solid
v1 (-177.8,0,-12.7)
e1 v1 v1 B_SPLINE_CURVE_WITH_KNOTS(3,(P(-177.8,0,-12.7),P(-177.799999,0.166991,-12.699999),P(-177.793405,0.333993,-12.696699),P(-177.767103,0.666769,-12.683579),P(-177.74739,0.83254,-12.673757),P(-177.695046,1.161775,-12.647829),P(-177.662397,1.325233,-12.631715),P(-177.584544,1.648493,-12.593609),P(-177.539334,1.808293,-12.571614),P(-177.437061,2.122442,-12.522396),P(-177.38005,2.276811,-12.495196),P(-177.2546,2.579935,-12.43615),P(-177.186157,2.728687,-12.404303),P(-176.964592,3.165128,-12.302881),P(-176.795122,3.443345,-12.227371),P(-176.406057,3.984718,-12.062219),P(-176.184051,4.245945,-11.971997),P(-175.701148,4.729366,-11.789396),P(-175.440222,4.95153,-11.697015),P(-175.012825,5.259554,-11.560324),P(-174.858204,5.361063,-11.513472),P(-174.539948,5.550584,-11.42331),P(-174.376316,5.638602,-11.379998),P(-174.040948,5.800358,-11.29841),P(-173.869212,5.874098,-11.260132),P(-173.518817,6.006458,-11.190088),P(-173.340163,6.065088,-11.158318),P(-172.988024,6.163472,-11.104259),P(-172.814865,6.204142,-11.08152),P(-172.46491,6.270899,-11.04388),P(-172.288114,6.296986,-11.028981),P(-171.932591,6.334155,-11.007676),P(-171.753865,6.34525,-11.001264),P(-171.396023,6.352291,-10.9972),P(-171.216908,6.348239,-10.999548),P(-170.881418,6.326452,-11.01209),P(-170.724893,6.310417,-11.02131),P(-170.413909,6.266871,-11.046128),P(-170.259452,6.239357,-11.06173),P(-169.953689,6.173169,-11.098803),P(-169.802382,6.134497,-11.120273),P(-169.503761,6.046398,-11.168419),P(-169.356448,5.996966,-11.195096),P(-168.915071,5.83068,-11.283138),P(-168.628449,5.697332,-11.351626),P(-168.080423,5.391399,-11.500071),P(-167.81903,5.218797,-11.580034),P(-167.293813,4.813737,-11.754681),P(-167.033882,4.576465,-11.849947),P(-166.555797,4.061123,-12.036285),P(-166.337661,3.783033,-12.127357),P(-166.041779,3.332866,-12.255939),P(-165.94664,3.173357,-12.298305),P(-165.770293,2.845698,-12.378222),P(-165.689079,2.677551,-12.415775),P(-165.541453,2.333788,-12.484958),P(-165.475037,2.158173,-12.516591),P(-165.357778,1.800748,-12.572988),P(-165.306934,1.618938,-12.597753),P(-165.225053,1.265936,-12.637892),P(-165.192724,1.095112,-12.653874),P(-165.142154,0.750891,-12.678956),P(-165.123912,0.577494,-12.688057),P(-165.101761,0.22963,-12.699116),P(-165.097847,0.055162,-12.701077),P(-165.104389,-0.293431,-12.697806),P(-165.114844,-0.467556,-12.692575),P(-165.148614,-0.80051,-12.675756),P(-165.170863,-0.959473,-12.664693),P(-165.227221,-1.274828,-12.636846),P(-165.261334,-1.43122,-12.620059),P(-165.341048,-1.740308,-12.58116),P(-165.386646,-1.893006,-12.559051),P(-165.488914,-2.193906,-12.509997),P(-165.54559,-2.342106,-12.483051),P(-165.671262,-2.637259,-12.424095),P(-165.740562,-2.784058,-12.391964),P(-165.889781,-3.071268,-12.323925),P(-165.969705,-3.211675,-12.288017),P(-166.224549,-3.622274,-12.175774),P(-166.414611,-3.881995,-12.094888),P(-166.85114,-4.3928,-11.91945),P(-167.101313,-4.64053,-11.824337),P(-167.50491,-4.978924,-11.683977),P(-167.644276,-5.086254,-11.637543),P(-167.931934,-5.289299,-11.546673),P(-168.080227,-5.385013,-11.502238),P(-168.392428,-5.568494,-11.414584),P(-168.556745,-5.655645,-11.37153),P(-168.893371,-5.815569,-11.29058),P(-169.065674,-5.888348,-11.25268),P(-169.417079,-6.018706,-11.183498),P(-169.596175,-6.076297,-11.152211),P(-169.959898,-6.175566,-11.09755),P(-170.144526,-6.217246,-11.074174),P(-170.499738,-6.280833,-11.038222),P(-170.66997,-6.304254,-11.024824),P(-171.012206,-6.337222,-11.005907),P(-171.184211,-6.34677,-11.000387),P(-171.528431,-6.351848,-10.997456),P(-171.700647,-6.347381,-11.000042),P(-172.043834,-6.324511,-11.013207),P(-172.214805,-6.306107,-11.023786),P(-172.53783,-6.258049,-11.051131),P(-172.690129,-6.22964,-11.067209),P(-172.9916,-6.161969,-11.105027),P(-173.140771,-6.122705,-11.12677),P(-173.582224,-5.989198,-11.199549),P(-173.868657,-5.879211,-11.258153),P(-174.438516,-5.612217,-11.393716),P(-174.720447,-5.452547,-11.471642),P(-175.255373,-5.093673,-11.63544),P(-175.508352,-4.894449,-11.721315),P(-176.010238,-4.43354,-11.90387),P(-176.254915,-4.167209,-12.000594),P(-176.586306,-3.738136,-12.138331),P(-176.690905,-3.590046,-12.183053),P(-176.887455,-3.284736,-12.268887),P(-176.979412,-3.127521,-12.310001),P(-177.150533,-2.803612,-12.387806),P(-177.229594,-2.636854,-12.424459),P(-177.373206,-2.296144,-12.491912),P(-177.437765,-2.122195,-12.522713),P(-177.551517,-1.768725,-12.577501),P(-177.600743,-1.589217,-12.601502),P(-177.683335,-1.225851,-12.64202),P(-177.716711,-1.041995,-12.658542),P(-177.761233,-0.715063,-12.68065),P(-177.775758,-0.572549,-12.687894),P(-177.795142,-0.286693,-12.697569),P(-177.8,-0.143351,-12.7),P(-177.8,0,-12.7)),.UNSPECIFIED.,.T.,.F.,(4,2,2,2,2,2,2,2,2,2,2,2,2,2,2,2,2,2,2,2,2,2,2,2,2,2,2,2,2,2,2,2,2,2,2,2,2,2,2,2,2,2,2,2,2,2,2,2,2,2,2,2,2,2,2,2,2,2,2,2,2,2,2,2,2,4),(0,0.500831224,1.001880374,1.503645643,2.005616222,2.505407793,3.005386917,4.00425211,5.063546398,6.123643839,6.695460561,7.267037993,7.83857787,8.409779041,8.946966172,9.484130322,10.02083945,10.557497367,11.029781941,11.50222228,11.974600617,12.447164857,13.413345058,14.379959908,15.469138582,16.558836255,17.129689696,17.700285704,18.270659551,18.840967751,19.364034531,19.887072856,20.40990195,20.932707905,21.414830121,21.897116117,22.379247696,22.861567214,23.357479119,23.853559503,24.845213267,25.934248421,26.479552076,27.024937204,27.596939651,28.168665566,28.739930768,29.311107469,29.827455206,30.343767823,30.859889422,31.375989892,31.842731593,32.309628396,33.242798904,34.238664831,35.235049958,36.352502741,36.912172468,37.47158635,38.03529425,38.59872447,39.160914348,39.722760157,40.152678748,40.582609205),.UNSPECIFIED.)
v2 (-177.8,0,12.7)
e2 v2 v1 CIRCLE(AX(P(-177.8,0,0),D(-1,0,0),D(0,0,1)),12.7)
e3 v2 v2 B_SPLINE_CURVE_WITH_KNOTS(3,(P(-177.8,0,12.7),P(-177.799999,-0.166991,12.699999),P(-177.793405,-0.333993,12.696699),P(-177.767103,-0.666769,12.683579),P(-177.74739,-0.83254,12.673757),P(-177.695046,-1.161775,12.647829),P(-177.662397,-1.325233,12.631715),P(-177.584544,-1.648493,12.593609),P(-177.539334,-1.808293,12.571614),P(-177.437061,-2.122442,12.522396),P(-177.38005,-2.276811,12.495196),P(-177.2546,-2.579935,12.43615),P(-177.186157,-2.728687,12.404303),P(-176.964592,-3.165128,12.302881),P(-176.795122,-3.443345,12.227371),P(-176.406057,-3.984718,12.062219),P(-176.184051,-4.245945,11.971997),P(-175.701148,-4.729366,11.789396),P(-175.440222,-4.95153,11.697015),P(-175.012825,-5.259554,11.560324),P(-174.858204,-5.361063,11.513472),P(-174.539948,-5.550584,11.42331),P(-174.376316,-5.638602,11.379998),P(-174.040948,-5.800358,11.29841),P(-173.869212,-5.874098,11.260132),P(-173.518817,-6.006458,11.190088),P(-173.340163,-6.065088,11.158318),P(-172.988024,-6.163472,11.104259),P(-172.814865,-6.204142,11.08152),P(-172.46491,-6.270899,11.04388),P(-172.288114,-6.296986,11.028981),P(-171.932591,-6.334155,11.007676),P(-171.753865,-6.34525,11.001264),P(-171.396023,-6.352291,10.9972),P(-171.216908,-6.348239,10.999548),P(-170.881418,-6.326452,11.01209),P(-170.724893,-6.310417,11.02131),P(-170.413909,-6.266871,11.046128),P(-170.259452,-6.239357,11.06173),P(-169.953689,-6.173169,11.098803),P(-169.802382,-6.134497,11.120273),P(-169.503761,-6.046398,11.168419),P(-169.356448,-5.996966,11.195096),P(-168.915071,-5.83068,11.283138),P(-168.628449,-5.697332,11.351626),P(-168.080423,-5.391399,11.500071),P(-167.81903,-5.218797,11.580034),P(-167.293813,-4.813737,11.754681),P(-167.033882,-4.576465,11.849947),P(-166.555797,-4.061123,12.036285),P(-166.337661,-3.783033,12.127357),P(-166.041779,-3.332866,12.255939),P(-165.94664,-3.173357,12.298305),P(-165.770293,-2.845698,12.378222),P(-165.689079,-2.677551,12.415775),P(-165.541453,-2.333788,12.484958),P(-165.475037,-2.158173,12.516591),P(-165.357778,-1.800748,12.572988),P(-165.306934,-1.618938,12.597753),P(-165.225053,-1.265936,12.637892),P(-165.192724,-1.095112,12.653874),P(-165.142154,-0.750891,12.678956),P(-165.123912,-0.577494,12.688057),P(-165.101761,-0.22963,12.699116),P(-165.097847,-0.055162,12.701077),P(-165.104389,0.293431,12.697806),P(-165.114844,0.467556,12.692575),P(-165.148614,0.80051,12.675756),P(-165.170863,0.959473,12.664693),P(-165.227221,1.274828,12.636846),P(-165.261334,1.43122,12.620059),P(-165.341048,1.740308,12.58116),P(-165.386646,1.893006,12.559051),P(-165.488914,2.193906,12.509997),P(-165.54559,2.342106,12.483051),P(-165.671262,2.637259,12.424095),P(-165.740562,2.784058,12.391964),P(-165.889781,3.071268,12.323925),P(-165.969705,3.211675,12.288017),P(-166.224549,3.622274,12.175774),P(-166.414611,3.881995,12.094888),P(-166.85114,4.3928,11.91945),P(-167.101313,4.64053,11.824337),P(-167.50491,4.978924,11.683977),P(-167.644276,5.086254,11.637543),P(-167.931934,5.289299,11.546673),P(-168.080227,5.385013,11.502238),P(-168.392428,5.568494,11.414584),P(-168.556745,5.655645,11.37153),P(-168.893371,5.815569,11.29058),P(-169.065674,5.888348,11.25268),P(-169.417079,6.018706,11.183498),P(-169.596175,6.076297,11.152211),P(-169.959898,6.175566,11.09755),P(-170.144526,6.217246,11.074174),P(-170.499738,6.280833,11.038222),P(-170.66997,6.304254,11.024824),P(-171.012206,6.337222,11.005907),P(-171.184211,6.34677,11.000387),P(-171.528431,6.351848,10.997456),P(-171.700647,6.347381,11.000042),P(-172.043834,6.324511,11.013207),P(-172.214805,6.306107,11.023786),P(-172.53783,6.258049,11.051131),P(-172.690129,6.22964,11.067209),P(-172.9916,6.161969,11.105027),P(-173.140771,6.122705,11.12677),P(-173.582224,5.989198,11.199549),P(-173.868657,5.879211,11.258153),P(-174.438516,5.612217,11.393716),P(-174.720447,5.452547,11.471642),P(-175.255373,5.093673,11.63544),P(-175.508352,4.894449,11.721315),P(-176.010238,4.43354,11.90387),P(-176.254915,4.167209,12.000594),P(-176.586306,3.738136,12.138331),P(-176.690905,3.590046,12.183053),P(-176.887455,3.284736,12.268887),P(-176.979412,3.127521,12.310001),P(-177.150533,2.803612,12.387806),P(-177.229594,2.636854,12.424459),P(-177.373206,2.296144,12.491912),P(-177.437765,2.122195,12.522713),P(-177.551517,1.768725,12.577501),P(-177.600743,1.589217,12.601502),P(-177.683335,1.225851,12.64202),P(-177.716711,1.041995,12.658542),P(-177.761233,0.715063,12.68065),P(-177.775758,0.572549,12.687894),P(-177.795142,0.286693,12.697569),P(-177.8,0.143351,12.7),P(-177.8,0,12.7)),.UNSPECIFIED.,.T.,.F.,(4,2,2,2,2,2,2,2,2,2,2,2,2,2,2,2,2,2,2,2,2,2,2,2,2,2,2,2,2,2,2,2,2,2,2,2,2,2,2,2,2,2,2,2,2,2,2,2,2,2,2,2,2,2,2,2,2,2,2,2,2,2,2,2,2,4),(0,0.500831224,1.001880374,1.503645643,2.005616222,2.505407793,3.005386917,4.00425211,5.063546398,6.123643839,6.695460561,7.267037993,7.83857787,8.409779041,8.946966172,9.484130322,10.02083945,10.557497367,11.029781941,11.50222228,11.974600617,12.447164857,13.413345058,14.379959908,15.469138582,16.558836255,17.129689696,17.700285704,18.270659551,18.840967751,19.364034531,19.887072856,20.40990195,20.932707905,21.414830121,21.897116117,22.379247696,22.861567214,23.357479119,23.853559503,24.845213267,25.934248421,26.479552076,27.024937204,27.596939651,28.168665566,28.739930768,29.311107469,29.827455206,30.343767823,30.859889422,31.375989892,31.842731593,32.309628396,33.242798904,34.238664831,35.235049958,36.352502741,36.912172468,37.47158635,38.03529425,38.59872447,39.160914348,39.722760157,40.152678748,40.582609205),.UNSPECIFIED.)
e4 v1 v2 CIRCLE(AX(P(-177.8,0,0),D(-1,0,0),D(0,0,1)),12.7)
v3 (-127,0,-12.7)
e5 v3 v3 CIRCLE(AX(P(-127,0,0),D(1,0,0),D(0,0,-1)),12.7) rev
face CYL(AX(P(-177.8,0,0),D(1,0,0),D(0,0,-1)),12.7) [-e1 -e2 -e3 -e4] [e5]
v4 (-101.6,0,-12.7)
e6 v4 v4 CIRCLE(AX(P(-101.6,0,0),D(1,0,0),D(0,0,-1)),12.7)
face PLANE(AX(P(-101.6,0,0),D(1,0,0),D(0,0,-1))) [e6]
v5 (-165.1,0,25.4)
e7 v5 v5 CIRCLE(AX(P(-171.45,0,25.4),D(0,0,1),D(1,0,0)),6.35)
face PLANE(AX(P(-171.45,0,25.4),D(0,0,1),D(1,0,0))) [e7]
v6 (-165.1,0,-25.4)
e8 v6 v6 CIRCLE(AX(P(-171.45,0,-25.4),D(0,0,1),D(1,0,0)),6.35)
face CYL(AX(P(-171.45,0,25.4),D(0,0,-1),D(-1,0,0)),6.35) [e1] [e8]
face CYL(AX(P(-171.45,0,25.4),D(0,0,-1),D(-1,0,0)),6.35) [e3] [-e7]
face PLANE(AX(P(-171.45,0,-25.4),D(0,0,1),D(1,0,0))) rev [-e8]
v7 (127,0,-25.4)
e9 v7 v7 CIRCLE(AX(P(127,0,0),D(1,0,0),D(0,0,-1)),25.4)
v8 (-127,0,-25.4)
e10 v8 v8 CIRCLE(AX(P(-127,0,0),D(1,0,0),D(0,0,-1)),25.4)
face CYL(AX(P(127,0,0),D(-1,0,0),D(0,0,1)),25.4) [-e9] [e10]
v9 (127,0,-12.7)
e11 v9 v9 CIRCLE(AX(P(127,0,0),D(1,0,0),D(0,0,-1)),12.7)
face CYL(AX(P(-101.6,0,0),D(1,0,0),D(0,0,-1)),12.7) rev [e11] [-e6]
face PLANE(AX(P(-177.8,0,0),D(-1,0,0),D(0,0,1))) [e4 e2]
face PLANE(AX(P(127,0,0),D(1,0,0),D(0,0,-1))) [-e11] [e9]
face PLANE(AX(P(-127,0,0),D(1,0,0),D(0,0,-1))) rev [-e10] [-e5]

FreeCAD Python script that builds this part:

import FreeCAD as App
import Part
import Sketcher
Q = App.Units.Quantity

doc = App.newDocument("Part")
body = doc.addObject("PartDesign::Body", "Body")

# Sketch on YZ plane
sketch1 = body.newObject("Sketcher::SketchObject", "Sketch")
sketch1.AttachmentSupport = (doc.getObject("YZ_Plane"), [""])
sketch1.MapMode = "FlatFace"
sketch1.addGeometry(Part.Circle(App.Vector(0, 0, 0), App.Vector(0, 0, 1), 25.4), False)
sketch1.addConstraint(Sketcher.Constraint("Coincident", 0, 3, -1, 1))
sketch1.addConstraint(Sketcher.Constraint("Diameter", 0, Q("2 in")))
pad1 = body.newObject("PartDesign::Pad", "Pad")
pad1.Profile = sketch1
pad1.Length = Q("10 in")
pad1.Midplane = True

# Sketch on YZ plane
sketch2 = body.newObject("Sketcher::SketchObject", "Sketch001")
sketch2.AttachmentSupport = (doc.getObject("YZ_Plane"), [""])
sketch2.MapMode = "FlatFace"
sketch2.AttachmentOffset = App.Placement(App.Vector(0, 0, -5 * 25.4), App.Rotation())
sketch2.addGeometry(Part.Circle(App.Vector(0, 0, 0), App.Vector(0, 0, 1), 12.7), False)
sketch2.addConstraint(Sketcher.Constraint("Coincident", 0, 3, -1, 1))
sketch2.addConstraint(Sketcher.Constraint("Diameter", 0, Q("1 in")))
pad2 = body.newObject("PartDesign::Pad", "Pad001")
pad2.Profile = sketch2
pad2.Length = Q("2 in")
pad2.Reversed = True

# Sketch on XY plane
sketch3 = body.newObject("Sketcher::SketchObject", "Sketch002")
sketch3.AttachmentSupport = (doc.getObject("XY_Plane"), [""])
sketch3.MapMode = "FlatFace"
sketch3.addGeometry(Part.Circle(App.Vector(-171.45, 0, 0), App.Vector(0, 0, 1), 6.35), False)
sketch3.addConstraint(Sketcher.Constraint("PointOnObject", 0, 3, -1))
sketch3.addConstraint(Sketcher.Constraint("Diameter", 0, Q("0.5 in")))
sketch3.addConstraint(Sketcher.Constraint("DistanceX", 0, 3, -1, 1, Q("6.75 in")))
pad3 = body.newObject("PartDesign::Pad", "Pad002")
pad3.Profile = sketch3
pad3.Length = Q("2 in")
pad3.Midplane = True

# Sketch on YZ plane
sketch4 = body.newObject("Sketcher::SketchObject", "Sketch003")
sketch4.AttachmentSupport = (doc.getObject("YZ_Plane"), [""])
sketch4.MapMode = "FlatFace"
sketch4.AttachmentOffset = App.Placement(App.Vector(0, 0, 5 * 25.4), App.Rotation())
sketch4.addGeometry(Part.Circle(App.Vector(0, 0, 0), App.Vector(0, 0, 1), 12.7), False)
sketch4.addConstraint(Sketcher.Constraint("Coincident", 0, 3, -1, 1))
sketch4.addConstraint(Sketcher.Constraint("Diameter", 0, Q("1 in")))
pocket1 = body.newObject("PartDesign::Pocket", "Pocket")
pocket1.Profile = sketch4
pocket1.Length = Q("9 in")

doc.recompute()
